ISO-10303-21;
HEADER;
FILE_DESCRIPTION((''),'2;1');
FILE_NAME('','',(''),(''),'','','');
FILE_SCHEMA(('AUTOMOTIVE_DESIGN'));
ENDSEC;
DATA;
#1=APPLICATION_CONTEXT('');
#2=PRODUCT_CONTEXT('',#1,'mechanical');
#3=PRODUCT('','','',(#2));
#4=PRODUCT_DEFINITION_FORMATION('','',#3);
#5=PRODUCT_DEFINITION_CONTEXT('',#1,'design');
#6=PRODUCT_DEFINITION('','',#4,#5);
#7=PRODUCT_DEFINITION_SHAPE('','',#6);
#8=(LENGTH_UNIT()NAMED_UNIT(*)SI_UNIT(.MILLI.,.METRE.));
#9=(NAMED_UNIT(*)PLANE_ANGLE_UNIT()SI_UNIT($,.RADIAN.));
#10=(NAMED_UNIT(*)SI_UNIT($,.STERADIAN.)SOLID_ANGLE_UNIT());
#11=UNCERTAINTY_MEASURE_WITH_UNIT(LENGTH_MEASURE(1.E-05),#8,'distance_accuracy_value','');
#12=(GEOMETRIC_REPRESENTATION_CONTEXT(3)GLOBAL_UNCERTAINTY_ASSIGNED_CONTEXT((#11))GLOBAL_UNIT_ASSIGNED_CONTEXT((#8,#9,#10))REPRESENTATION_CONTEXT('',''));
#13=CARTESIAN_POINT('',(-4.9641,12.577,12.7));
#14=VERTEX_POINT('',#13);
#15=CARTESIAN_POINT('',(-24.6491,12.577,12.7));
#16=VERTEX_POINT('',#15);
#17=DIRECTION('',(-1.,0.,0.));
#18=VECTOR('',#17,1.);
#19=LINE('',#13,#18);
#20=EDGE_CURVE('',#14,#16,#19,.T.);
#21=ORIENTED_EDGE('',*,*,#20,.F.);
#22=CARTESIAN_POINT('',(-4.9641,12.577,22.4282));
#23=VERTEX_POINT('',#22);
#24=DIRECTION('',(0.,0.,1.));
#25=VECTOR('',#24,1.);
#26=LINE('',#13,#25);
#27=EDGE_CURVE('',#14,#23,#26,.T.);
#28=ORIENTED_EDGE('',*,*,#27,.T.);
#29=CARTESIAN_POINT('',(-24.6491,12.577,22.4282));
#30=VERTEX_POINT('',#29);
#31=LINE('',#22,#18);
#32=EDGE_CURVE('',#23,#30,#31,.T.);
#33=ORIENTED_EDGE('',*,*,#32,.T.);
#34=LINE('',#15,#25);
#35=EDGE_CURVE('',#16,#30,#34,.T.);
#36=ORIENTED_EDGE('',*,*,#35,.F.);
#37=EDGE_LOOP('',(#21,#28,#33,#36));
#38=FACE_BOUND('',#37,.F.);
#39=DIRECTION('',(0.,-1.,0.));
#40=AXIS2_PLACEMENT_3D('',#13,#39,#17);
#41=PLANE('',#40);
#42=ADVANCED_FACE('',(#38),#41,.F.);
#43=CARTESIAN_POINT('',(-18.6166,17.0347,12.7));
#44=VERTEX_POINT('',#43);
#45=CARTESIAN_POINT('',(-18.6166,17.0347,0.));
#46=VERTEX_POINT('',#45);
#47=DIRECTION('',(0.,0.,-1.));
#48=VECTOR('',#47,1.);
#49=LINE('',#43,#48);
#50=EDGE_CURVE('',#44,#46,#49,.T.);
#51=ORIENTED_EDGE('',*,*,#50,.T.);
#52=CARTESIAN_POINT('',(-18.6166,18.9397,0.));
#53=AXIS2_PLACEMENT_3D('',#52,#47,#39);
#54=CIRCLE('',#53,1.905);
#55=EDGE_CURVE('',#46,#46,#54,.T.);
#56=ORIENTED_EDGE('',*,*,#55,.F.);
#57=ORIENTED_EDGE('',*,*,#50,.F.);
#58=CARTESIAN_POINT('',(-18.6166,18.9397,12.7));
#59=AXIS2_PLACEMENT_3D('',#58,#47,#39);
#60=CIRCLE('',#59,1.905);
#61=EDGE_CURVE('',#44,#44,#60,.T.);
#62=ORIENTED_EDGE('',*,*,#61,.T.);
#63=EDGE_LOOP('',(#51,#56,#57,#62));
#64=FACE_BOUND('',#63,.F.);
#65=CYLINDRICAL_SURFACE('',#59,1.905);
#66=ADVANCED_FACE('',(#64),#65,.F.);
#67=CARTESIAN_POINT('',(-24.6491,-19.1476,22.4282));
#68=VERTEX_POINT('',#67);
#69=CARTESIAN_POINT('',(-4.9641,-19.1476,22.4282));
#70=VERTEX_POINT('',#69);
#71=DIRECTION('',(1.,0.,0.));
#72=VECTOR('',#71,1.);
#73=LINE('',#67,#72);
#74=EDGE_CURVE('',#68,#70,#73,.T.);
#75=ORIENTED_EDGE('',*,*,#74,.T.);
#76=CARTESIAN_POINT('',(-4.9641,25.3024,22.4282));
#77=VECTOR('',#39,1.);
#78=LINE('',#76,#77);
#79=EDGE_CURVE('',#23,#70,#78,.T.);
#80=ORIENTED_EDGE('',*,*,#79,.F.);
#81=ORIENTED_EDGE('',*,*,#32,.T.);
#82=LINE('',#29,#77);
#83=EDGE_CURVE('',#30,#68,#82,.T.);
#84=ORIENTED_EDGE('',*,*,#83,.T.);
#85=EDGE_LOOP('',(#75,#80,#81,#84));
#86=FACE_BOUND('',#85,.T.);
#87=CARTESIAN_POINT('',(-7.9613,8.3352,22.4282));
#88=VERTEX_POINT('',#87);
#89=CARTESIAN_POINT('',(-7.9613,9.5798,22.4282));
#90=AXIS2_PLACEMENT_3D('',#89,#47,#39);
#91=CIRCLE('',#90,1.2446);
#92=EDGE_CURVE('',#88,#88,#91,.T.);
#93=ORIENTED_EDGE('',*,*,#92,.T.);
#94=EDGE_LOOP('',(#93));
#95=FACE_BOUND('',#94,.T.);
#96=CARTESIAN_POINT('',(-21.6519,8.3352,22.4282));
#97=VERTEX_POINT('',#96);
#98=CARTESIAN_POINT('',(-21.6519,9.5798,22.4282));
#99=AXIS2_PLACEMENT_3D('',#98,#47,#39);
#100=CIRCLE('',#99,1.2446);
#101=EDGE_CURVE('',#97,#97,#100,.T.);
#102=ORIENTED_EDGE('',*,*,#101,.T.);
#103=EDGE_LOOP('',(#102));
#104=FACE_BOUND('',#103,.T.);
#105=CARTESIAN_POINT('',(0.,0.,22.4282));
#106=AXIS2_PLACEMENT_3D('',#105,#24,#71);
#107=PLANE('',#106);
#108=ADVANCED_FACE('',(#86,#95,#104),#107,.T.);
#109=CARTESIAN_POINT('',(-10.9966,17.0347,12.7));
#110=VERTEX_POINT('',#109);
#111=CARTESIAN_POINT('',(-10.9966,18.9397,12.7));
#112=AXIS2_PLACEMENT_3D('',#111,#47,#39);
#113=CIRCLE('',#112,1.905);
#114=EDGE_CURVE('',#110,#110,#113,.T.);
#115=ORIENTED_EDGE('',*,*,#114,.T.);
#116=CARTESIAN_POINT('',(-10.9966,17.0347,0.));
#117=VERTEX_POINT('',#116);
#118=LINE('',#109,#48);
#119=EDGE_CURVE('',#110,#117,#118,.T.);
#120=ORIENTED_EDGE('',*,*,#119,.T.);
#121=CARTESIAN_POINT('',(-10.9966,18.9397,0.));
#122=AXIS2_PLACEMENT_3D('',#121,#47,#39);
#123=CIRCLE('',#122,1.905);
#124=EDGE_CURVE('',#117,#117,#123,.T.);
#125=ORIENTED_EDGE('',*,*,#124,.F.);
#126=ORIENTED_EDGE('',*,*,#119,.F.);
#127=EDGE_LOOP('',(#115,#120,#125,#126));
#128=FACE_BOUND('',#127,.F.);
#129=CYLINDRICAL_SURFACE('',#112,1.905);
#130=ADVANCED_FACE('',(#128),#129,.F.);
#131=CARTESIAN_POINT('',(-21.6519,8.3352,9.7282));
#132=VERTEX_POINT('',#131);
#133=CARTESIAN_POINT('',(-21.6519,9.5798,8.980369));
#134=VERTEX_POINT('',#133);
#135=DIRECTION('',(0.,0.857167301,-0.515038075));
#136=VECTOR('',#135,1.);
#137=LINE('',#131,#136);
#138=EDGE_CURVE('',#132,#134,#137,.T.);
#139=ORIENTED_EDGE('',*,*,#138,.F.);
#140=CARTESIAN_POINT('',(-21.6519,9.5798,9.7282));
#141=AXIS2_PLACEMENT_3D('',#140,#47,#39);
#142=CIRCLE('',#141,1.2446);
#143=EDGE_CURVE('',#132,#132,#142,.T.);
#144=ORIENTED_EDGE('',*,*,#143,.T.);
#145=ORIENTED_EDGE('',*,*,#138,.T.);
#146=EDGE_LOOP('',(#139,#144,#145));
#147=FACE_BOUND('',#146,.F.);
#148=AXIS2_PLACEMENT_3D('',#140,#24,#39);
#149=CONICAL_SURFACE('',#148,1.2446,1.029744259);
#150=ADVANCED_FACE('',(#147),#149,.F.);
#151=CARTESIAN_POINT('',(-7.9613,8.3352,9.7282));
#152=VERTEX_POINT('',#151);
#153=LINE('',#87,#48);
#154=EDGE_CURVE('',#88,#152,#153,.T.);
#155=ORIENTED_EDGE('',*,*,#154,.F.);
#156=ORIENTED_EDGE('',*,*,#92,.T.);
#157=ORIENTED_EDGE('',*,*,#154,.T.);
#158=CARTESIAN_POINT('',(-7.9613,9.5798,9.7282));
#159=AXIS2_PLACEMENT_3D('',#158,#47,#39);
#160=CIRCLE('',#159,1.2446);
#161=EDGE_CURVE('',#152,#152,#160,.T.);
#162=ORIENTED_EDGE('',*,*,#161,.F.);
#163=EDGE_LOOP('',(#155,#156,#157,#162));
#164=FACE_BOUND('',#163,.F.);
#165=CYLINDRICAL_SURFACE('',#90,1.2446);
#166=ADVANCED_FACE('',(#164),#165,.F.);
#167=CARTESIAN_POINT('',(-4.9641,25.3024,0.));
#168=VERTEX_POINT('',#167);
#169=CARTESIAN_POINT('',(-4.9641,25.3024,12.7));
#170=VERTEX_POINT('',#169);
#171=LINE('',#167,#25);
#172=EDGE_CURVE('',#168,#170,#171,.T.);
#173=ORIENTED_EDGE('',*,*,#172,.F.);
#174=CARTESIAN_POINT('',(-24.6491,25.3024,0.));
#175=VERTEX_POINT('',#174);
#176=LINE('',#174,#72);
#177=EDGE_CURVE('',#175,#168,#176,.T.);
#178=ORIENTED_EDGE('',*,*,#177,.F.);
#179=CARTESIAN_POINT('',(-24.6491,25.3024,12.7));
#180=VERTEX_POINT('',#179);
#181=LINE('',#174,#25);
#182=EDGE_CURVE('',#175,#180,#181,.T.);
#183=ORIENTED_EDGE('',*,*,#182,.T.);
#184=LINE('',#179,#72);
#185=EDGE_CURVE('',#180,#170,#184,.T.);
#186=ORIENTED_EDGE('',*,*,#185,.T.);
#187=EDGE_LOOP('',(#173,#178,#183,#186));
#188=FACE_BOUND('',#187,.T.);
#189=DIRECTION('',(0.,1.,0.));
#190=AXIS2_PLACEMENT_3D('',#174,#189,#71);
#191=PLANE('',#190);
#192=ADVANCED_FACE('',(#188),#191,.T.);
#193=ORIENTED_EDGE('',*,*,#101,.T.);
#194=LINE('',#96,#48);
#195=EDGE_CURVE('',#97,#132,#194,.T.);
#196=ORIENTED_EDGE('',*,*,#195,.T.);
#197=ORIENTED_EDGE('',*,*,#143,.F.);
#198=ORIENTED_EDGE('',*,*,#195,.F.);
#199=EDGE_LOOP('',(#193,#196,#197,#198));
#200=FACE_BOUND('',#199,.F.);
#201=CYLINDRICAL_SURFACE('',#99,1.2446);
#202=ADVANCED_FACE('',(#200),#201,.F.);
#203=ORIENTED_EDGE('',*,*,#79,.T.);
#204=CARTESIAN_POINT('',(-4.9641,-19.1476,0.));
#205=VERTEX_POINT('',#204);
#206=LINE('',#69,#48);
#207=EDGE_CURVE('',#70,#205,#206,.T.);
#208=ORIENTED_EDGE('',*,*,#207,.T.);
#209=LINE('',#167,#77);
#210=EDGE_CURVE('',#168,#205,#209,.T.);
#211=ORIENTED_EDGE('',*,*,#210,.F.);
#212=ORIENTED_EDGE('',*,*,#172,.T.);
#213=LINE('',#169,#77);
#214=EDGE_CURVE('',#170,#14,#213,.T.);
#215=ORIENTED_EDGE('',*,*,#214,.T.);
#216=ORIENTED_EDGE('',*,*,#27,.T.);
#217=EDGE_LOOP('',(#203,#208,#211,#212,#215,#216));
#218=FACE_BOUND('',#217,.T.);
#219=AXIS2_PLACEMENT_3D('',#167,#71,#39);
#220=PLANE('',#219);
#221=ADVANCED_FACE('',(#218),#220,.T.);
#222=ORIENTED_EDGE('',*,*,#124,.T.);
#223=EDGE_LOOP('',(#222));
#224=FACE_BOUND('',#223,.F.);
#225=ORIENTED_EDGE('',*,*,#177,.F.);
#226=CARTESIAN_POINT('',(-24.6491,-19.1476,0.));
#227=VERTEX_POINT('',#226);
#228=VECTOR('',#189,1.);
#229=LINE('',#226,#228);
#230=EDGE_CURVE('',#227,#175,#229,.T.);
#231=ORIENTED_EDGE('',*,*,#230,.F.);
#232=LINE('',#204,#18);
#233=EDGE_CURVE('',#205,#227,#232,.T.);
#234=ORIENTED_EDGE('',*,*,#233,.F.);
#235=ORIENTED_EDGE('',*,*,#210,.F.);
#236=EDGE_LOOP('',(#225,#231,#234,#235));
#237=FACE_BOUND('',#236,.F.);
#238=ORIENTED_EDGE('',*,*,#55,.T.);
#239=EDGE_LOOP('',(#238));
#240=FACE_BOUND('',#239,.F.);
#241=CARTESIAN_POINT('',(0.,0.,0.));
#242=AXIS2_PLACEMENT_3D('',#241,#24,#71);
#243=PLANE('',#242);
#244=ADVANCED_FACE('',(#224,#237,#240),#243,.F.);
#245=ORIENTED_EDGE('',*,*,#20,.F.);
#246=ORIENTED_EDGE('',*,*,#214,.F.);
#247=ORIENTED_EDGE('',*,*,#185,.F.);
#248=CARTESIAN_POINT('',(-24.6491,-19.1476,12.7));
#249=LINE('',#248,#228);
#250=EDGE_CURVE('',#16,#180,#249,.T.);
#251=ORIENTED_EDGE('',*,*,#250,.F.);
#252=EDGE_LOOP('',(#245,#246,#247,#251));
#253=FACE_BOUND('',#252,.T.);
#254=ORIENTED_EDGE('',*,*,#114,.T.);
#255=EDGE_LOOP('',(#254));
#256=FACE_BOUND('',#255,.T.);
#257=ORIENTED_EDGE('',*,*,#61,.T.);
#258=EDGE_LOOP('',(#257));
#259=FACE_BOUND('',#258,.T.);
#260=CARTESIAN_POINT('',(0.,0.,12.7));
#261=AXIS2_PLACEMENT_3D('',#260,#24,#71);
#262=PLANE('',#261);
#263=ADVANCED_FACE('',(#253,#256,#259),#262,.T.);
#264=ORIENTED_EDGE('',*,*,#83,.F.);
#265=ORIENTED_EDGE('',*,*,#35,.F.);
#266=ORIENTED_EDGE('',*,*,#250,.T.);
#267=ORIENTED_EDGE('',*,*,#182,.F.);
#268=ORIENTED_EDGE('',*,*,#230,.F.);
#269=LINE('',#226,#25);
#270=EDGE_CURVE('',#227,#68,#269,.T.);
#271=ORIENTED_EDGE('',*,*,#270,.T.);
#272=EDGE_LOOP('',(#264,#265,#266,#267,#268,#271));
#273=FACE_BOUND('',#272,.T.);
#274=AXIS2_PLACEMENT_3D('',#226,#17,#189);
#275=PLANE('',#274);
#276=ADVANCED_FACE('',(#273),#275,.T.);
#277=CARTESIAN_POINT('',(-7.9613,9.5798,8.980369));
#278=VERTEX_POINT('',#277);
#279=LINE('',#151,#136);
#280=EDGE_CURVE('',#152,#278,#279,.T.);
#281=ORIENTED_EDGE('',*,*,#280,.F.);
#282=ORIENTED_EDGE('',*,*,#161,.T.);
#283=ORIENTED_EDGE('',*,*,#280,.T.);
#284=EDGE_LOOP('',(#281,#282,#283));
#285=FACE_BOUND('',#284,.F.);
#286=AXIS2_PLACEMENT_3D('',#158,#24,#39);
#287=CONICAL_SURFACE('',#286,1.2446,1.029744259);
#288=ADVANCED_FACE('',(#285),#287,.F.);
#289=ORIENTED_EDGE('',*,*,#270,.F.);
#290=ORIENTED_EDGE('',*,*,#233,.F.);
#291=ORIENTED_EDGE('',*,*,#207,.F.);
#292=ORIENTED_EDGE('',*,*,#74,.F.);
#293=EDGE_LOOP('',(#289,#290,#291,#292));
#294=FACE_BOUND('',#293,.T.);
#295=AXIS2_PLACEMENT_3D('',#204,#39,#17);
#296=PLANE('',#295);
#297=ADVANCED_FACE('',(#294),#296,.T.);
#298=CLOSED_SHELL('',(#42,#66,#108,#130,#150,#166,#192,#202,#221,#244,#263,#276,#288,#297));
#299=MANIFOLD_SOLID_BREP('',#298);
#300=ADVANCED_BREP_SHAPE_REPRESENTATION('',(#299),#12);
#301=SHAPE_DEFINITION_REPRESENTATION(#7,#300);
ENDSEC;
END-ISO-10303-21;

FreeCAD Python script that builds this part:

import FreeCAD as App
import Part
import Sketcher

V = App.Vector
Q = App.Units.Quantity


def add_polygon(sketch, points):
    """Adds a closed chain of lines whose ends are joined by coincident constraints."""
    first, n = sketch.GeometryCount, len(points)
    for a, b in zip(points, points[1:] + points[:1]):
        sketch.addGeometry(Part.LineSegment(App.Vector(*a, 0), App.Vector(*b, 0)), False)
    for i in range(n):
        sketch.addConstraint(Sketcher.Constraint("Coincident", first + i, 2, first + (i + 1) % n, 1))

doc = App.newDocument("Part")
body = doc.addObject("PartDesign::Body", "Body")

sketch1 = body.newObject("Sketcher::SketchObject", "Sketch")
sketch1.AttachmentSupport = (doc.getObject("XY_Plane"), [""])
sketch1.MapMode = "FlatFace"
add_polygon(sketch1, [(-5, 25), (-25, 25), (-25, -19), (-5, -19)])
sketch1.addConstraint([
    Sketcher.Constraint("Horizontal", 0),
    Sketcher.Constraint("Vertical", 1),
    Sketcher.Constraint("Horizontal", 2),
    Sketcher.Constraint("Vertical", 3),
    Sketcher.Constraint("DistanceY", 1, 2, 1, 1, Q("1.75 in")),
    Sketcher.Constraint("DistanceX", 0, 2, 0, 1, Q("0.775 in")),
    Sketcher.Constraint("DistanceX", 0, 2, -1, 1, 24.649),
    Sketcher.Constraint("DistanceY", -1, 1, 0, 2, 25.3024),
])
pad1 = body.newObject("PartDesign::Pad", "Pad")
pad1.Profile = sketch1
pad1.Length = Q("0.5 in")

sketch2 = body.newObject("Sketcher::SketchObject", "Sketch001")
sketch2.AttachmentSupport = (doc.getObject("XY_Plane"), [""])
sketch2.MapMode = "FlatFace"
sketch2.AttachmentOffset = App.Placement(V(0, 0, 0.5 * 25.4), App.Rotation())
add_polygon(sketch2, [(-5, -19), (-5, 13), (-25, 13), (-25, -19)])
sketch2.addConstraint([
    Sketcher.Constraint("Vertical", 0),
    Sketcher.Constraint("Horizontal", 1),
    Sketcher.Constraint("Vertical", 2),
    Sketcher.Constraint("Horizontal", 3),
    Sketcher.Constraint("DistanceY", 0, 1, 0, 2, Q("1.249 in")),
    Sketcher.Constraint("DistanceX", 1, 2, 1, 1, Q("0.775 in")),
    Sketcher.Constraint("DistanceX", 0, 2, -1, 1, 4.964),
    Sketcher.Constraint("DistanceY", -1, 1, 0, 2, 12.577),
])
pad2 = body.newObject("PartDesign::Pad", "Pad001")
pad2.Profile = sketch2
pad2.Length = Q("0.383 in")

sketch3 = body.newObject("Sketcher::SketchObject", "Sketch002")
sketch3.AttachmentSupport = (doc.getObject("XY_Plane"), [""])
sketch3.MapMode = "FlatFace"
sketch3.AttachmentOffset = App.Placement(V(0, 0, 0.883 * 25.4), App.Rotation())
sketch3.addGeometry([
    Part.Circle(V(-21.7, 9.6, 0), V(0, 0, 1), 1.2),
    Part.Circle(V(-8, 9.6, 0), V(0, 0, 1), 1.2),
], False)
sketch3.addConstraint([
    Sketcher.Constraint("Equal", 0, 1),
    Sketcher.Constraint("Horizontal", 0, 3, 1, 3),
    Sketcher.Constraint("Diameter", 0, Q("0.098 in")),
    Sketcher.Constraint("DistanceX", 0, 3, 1, 3, Q("0.539 in")),
    Sketcher.Constraint("DistanceX", 0, 3, -1, 1, 21.652),
    Sketcher.Constraint("DistanceY", -1, 1, 0, 3, 9.5798),
])
doc.recompute()
hole = body.newObject("PartDesign::Hole", "Hole")
hole.Profile = sketch3
hole.ThreadType = "None"
hole.Diameter = Q("0.098 in")
hole.DepthType = "Dimension"
hole.Depth = Q("0.5 in")
hole.DrillPoint = "Angled"
hole.DrillPointAngle = 118

sketch4 = body.newObject("Sketcher::SketchObject", "Sketch003")
sketch4.AttachmentSupport = (doc.getObject("XY_Plane"), [""])
sketch4.MapMode = "FlatFace"
sketch4.AttachmentOffset = App.Placement(V(0, 0, 0.5 * 25.4), App.Rotation())
sketch4.addGeometry([
    Part.Circle(V(-11, 18.9, 0), V(0, 0, 1), 1.9),
    Part.Circle(V(-18.6, 18.9, 0), V(0, 0, 1), 1.9),
], False)
sketch4.addConstraint([
    Sketcher.Constraint("Equal", 0, 1),
    Sketcher.Constraint("Horizontal", 0, 3, 1, 3),
    Sketcher.Constraint("Diameter", 0, Q("0.15 in")),
    Sketcher.Constraint("DistanceX", 1, 3, 0, 3, Q("0.3 in")),
    Sketcher.Constraint("DistanceX", 0, 3, -1, 1, 10.9966),
    Sketcher.Constraint("DistanceY", -1, 1, 0, 3, 18.9397),
])
doc.recompute()
hole2 = body.newObject("PartDesign::Hole", "Hole001")
hole2.Profile = sketch4
hole2.ThreadType = "None"
hole2.Diameter = Q("0.15 in")
hole2.DepthType = "Dimension"
hole2.Depth = Q("0.5 in")
hole2.DrillPoint = "Angled"
hole2.DrillPointAngle = 118

doc.recompute()
